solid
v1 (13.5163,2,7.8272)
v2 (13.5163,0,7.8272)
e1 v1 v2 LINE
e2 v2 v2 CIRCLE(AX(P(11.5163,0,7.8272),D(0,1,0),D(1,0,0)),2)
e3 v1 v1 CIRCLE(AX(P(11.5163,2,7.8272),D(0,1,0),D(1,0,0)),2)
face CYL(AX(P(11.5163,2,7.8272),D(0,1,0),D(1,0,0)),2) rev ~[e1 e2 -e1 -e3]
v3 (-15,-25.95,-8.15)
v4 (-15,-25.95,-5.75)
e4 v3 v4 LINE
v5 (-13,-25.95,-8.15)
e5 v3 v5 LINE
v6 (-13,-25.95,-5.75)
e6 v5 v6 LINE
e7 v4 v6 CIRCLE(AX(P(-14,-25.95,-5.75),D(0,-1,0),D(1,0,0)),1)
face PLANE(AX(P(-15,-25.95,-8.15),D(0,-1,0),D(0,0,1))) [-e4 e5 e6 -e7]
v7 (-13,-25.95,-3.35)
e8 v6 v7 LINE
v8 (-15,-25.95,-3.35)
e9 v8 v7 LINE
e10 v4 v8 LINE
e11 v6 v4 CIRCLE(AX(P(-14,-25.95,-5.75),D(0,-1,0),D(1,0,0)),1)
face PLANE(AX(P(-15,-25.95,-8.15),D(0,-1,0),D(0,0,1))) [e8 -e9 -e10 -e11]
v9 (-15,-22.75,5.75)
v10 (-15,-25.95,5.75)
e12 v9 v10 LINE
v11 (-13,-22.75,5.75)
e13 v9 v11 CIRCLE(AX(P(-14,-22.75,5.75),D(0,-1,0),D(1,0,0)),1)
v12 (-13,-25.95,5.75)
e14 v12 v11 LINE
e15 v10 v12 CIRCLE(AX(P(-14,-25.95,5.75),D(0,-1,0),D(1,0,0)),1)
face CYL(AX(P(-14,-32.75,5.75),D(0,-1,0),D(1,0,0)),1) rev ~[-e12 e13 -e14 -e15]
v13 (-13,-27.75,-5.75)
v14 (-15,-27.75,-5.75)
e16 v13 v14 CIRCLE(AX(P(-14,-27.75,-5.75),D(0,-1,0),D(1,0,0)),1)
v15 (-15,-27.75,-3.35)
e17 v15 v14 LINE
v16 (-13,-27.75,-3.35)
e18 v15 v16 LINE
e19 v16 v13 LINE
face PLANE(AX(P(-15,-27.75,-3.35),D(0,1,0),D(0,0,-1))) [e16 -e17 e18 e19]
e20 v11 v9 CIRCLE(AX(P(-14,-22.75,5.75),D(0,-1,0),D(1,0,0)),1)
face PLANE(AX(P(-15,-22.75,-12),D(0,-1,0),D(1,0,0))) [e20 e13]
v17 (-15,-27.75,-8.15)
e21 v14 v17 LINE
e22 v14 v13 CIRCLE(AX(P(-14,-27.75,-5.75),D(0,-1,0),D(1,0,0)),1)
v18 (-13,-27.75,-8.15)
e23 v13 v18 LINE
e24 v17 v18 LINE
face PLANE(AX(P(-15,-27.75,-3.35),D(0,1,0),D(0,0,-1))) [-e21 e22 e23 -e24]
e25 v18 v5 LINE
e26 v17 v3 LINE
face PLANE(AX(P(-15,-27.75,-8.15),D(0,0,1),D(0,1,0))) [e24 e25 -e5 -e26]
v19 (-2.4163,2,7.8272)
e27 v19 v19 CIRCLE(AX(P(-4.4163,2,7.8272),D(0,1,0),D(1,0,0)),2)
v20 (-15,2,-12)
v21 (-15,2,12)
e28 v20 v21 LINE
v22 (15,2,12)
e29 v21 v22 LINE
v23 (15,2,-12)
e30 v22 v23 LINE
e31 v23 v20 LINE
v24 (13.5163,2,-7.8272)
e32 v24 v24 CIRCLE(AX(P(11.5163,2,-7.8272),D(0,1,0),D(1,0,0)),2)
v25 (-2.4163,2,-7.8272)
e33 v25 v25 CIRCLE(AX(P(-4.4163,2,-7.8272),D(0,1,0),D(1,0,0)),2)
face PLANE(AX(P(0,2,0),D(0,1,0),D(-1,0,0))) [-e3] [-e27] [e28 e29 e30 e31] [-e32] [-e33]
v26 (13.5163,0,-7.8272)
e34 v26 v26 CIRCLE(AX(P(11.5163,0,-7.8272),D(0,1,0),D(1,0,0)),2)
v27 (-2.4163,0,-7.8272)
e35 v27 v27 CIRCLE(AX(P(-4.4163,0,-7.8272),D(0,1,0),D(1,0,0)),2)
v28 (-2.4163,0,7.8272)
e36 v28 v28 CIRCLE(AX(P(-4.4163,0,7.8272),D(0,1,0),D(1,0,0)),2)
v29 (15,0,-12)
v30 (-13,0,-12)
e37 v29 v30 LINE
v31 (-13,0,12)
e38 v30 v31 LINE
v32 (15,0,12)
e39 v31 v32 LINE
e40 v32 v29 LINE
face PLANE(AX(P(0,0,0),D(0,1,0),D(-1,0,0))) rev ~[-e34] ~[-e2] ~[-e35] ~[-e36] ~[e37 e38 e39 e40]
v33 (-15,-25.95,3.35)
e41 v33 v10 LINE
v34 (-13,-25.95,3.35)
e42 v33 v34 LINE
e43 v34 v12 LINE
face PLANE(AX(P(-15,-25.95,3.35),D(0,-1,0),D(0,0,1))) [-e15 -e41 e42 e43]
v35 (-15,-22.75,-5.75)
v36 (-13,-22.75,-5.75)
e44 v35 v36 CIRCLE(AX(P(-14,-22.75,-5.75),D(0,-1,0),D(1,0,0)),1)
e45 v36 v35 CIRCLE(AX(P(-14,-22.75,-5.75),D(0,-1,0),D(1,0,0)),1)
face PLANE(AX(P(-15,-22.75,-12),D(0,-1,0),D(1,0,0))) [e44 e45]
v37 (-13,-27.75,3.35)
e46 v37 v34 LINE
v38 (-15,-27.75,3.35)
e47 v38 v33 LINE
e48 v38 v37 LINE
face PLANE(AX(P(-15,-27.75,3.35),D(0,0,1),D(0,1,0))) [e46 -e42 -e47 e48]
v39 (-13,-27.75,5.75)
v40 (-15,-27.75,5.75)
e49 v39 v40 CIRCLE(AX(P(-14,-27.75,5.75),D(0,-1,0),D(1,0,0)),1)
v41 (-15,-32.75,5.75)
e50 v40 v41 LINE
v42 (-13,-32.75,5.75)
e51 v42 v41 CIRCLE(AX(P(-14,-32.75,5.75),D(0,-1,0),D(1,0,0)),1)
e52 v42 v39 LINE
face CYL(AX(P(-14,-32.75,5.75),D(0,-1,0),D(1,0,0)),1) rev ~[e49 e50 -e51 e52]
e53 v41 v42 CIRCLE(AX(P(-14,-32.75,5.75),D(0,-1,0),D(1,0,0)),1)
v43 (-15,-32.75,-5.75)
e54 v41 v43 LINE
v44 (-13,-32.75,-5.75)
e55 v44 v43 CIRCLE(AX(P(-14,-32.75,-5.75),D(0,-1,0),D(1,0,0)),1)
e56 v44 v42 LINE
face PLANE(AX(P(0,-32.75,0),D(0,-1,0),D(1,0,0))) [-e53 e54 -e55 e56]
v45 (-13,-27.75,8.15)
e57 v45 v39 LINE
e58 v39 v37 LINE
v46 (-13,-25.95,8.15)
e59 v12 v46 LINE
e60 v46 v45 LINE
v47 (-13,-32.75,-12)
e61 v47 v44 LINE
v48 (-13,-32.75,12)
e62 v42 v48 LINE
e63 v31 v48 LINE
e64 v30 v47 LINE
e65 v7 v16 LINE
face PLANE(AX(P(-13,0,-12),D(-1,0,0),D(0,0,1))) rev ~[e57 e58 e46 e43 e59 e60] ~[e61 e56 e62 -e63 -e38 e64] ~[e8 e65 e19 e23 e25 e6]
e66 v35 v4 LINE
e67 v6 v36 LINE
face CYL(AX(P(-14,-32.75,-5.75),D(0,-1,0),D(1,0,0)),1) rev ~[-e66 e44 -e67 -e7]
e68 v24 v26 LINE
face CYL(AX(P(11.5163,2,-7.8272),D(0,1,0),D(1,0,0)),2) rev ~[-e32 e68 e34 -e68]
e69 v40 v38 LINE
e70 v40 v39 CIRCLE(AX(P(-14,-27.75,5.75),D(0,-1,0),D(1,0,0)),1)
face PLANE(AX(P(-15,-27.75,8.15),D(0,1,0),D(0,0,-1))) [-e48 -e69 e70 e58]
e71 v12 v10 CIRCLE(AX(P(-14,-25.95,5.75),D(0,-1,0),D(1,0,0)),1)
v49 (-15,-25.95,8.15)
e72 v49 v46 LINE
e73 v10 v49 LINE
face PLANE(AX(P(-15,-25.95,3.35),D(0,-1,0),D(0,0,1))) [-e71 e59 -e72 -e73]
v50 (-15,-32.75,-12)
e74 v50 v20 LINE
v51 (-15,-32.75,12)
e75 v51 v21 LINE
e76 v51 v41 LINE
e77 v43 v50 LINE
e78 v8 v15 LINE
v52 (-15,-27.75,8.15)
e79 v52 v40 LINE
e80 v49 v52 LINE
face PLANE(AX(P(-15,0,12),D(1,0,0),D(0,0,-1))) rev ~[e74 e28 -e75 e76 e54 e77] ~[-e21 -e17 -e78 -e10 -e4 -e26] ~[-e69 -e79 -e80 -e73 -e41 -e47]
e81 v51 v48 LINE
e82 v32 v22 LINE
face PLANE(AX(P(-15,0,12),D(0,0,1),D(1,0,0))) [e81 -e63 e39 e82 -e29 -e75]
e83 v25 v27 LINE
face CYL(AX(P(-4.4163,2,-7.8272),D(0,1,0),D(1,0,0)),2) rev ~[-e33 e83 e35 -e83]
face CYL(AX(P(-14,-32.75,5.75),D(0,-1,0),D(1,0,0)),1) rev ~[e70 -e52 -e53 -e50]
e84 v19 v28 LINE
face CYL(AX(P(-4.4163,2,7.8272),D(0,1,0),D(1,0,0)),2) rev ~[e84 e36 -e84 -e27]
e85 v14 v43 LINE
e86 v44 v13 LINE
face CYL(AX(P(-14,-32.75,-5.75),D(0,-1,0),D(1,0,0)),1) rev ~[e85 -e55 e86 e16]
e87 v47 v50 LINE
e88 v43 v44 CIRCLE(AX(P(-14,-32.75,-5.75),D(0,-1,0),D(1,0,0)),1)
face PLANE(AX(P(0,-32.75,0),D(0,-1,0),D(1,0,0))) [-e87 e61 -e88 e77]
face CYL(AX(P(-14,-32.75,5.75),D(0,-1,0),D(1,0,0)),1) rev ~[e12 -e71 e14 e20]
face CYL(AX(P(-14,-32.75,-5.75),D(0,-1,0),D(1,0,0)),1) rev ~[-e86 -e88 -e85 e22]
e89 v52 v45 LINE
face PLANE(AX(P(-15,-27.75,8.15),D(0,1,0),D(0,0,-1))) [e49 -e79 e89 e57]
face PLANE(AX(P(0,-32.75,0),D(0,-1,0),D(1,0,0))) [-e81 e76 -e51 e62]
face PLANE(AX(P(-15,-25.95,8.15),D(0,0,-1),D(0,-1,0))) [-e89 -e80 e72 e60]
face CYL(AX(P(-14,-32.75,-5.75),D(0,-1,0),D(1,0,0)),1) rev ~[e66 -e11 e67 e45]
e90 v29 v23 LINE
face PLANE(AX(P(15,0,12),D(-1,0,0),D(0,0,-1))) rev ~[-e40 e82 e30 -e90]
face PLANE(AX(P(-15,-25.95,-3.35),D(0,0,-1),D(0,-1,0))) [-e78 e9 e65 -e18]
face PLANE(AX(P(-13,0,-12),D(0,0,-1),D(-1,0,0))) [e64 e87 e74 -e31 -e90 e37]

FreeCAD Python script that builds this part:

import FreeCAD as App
import Part
import Sketcher
from FreeCAD import Vector

doc = App.newDocument("Part")
params = doc.addObject("Spreadsheet::Sheet", "Params")
for row, (alias, value) in enumerate([
    ("sketch1_width", "30 mm"),
    ("sketch1_height", "24 mm"),
    ("pad1_length", "2 mm"),
    ("sketch2_diameter", "4 mm"),
    ("pocket1_length", "2 mm"),
    ("sketch3_width", "2 mm"),
    ("sketch3_height", "24 mm"),
    ("pad2_length", "32.75 mm"),
    ("sketch4_width", "1.8 mm"),
    ("sketch4_height", "4.8 mm"),
    ("pocket2_length", "10 mm"),
    ("sketch5_diameter", "2 mm"),
    ("pocket3_length", "10 mm"),
], start=1):
    params.set(f"A{row}", alias)
    params.set(f"B{row}", "=" + value)
    params.setAlias(f"B{row}", alias)

body = doc.addObject("PartDesign::Body", "Body")

sketch1 = body.newObject("Sketcher::SketchObject", "Sketch")
sketch1.AttachmentSupport = (doc.getObject("XZ_Plane"), [""])
sketch1.MapMode = "FlatFace"
sketch1.addGeometry([
    Part.LineSegment(Vector(15, 12, 0), Vector(15, -12, 0)),
    Part.LineSegment(Vector(15, -12, 0), Vector(-15, -12, 0)),
    Part.LineSegment(Vector(-15, -12, 0), Vector(-15, 12, 0)),
    Part.LineSegment(Vector(-15, 12, 0), Vector(15, 12, 0)),
], False)
sketch1.addConstraint([
    Sketcher.Constraint("Coincident", 0, 2, 1, 1),
    Sketcher.Constraint("Coincident", 1, 2, 2, 1),
    Sketcher.Constraint("Coincident", 2, 2, 3, 1),
    Sketcher.Constraint("Coincident", 3, 2, 0, 1),
    Sketcher.Constraint("Vertical", 0),
    Sketcher.Constraint("Horizontal", 1),
    Sketcher.Constraint("Vertical", 2),
    Sketcher.Constraint("Horizontal", 3),
    Sketcher.Constraint("Symmetric", 0, 2, 2, 2, -1, 1),
    Sketcher.Constraint("DistanceX", 1, 2, 1, 1, 30.0),
    Sketcher.Constraint("DistanceY", 0, 2, 0, 1, 24.0),
])
sketch1.setExpression("Constraints[9]", "Params.sketch1_width")
sketch1.setExpression("Constraints[10]", "Params.sketch1_height")
pad1 = body.newObject("PartDesign::Pad", "Pad")
pad1.Profile = sketch1
pad1.setExpression("Length", "Params.pad1_length")
pad1.Reversed = True

sketch2 = body.newObject("Sketcher::SketchObject", "Sketch001")
sketch2.AttachmentSupport = (doc.getObject("XZ_Plane"), [""])
sketch2.MapMode = "FlatFace"
sketch2.AttachmentOffset = App.Placement(Vector(0, 0, -2), App.Rotation())
sketch2.addGeometry([
    Part.Circle(Vector(11.5, -7.8, 0), Vector(0, 0, 1), 2),
    Part.Circle(Vector(11.5, 7.8, 0), Vector(0, 0, 1), 2),
    Part.Circle(Vector(-4.4, 7.8, 0), Vector(0, 0, 1), 2),
    Part.Circle(Vector(-4.4, -7.8, 0), Vector(0, 0, 1), 2),
], False)
sketch2.addConstraint([
    Sketcher.Constraint("Equal", 0, 1),
    Sketcher.Constraint("Equal", 1, 2),
    Sketcher.Constraint("Equal", 2, 3),
    Sketcher.Constraint("Symmetric", 0, 3, 1, 3, -1),
    Sketcher.Constraint("Symmetric", 2, 3, 3, 3, -1),
    Sketcher.Constraint("Horizontal", 1, 3, 2, 3),
    Sketcher.Constraint("Diameter", 0, 4.0),
    Sketcher.Constraint("DistanceX", -1, 1, 0, 3, 11.5163),
    Sketcher.Constraint("DistanceY", 0, 3, -1, 1, 7.8272),
    Sketcher.Constraint("DistanceX", 2, 3, -1, 1, 4.4163),
])
sketch2.setExpression("Constraints[6]", "Params.sketch2_diameter")
pocket1 = body.newObject("PartDesign::Pocket", "Pocket")
pocket1.Profile = sketch2
pocket1.setExpression("Length", "Params.pocket1_length")
pocket1.Reversed = True

sketch3 = body.newObject("Sketcher::SketchObject", "Sketch002")
sketch3.AttachmentSupport = (doc.getObject("XZ_Plane"), [""])
sketch3.MapMode = "FlatFace"
sketch3.addGeometry([
    Part.LineSegment(Vector(-15, -12, 0), Vector(-13, -12, 0)),
    Part.LineSegment(Vector(-13, -12, 0), Vector(-13, 12, 0)),
    Part.LineSegment(Vector(-13, 12, 0), Vector(-15, 12, 0)),
    Part.LineSegment(Vector(-15, 12, 0), Vector(-15, -12, 0)),
], False)
sketch3.addConstraint([
    Sketcher.Constraint("Coincident", 0, 2, 1, 1),
    Sketcher.Constraint("Coincident", 1, 2, 2, 1),
    Sketcher.Constraint("Coincident", 2, 2, 3, 1),
    Sketcher.Constraint("Coincident", 3, 2, 0, 1),
    Sketcher.Constraint("Horizontal", 0),
    Sketcher.Constraint("Vertical", 1),
    Sketcher.Constraint("Horizontal", 2),
    Sketcher.Constraint("Vertical", 3),
    Sketcher.Constraint("DistanceX", 0, 1, 0, 2, 2.0),
    Sketcher.Constraint("DistanceY", 1, 1, 1, 2, 24.0),
    Sketcher.Constraint("DistanceX", 0, 2, -1, 1, 13.0),
    Sketcher.Constraint("DistanceY", 0, 2, -1, 1, 12.0),
])
sketch3.setExpression("Constraints[8]", "Params.sketch3_width")
sketch3.setExpression("Constraints[9]", "Params.sketch3_height")
pad2 = body.newObject("PartDesign::Pad", "Pad001")
pad2.Profile = sketch3
pad2.setExpression("Length", "Params.pad2_length")

sketch4 = body.newObject("Sketcher::SketchObject", "Sketch003")
sketch4.AttachmentSupport = (doc.getObject("YZ_Plane"), [""])
sketch4.MapMode = "FlatFace"
sketch4.AttachmentOffset = App.Placement(Vector(0, 0, -15), App.Rotation())
sketch4.addGeometry([
    Part.LineSegment(Vector(-25.9, 8.2, 0), Vector(-25.9, 3.4, 0)),
    Part.LineSegment(Vector(-25.9, 3.4, 0), Vector(-27.8, 3.4, 0)),
    Part.LineSegment(Vector(-27.8, 3.4, 0), Vector(-27.8, 8.2, 0)),
    Part.LineSegment(Vector(-27.8, 8.2, 0), Vector(-25.9, 8.2, 0)),
    Part.LineSegment(Vector(-25.9, -3.4, 0), Vector(-25.9, -8.2, 0)),
    Part.LineSegment(Vector(-25.9, -8.2, 0), Vector(-27.8, -8.2, 0)),
    Part.LineSegment(Vector(-27.8, -8.2, 0), Vector(-27.8, -3.4, 0)),
    Part.LineSegment(Vector(-27.8, -3.4, 0), Vector(-25.9, -3.4, 0)),
], False)
sketch4.addConstraint([
    Sketcher.Constraint("Coincident", 0, 2, 1, 1),
    Sketcher.Constraint("Coincident", 1, 2, 2, 1),
    Sketcher.Constraint("Coincident", 2, 2, 3, 1),
    Sketcher.Constraint("Coincident", 3, 2, 0, 1),
    Sketcher.Constraint("Coincident", 4, 2, 5, 1),
    Sketcher.Constraint("Coincident", 5, 2, 6, 1),
    Sketcher.Constraint("Coincident", 6, 2, 7, 1),
    Sketcher.Constraint("Coincident", 7, 2, 4, 1),
    Sketcher.Constraint("Vertical", 0),
    Sketcher.Constraint("Horizontal", 1),
    Sketcher.Constraint("Vertical", 2),
    Sketcher.Constraint("Horizontal", 3),
    Sketcher.Constraint("Vertical", 4),
    Sketcher.Constraint("Horizontal", 5),
    Sketcher.Constraint("Vertical", 6),
    Sketcher.Constraint("Horizontal", 7),
    Sketcher.Constraint("Symmetric", 3, 2, 4, 2, -1),
    Sketcher.Constraint("Symmetric", 1, 2, 6, 2, -1),
    Sketcher.Constraint("DistanceX", 1, 2, 1, 1, 1.8),
    Sketcher.Constraint("DistanceY", 0, 2, 0, 1, 4.8),
    Sketcher.Constraint("DistanceY", 4, 2, 0, 2, 11.5),
    Sketcher.Constraint("DistanceX", 0, 2, -1, 1, 25.95),
])
sketch4.setExpression("Constraints[18]", "Params.sketch4_width")
sketch4.setExpression("Constraints[19]", "Params.sketch4_height")
pocket2 = body.newObject("PartDesign::Pocket", "Pocket001")
pocket2.Profile = sketch4
pocket2.setExpression("Length", "Params.pocket2_length")
pocket2.Reversed = True

sketch5 = body.newObject("Sketcher::SketchObject", "Sketch004")
sketch5.AttachmentSupport = (doc.getObject("XZ_Plane"), [""])
sketch5.MapMode = "FlatFace"
sketch5.AttachmentOffset = App.Placement(Vector(0, 0, 32.75), App.Rotation())
sketch5.addGeometry([
    Part.Circle(Vector(-14, -5.8, 0), Vector(0, 0, 1), 1),
    Part.Circle(Vector(-14, 5.8, 0), Vector(0, 0, 1), 1),
], False)
sketch5.addConstraint([
    Sketcher.Constraint("Equal", 0, 1),
    Sketcher.Constraint("Symmetric", 0, 3, 1, 3, -1),
    Sketcher.Constraint("Diameter", 0, 2.0),
    Sketcher.Constraint("DistanceX", 0, 3, -1, 1, 14.0),
    Sketcher.Constraint("DistanceY", 0, 3, 1, 3, 11.5),
])
sketch5.setExpression("Constraints[2]", "Params.sketch5_diameter")
pocket3 = body.newObject("PartDesign::Pocket", "Pocket002")
pocket3.Profile = sketch5
pocket3.setExpression("Length", "Params.pocket3_length")

doc.recompute()
